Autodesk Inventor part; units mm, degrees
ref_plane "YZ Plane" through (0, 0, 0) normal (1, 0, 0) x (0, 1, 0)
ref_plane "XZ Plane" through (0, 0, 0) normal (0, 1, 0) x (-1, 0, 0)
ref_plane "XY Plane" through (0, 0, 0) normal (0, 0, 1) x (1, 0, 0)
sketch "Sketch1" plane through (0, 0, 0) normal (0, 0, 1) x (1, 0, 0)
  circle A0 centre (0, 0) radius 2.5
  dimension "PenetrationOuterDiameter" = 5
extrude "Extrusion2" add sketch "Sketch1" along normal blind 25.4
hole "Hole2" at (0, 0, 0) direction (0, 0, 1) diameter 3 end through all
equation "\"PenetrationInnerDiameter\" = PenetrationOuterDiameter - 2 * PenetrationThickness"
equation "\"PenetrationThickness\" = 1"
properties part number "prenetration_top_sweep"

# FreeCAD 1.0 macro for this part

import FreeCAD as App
import Part
import Sketcher
Q = App.Units.Quantity

doc = App.newDocument("Part")
body = doc.addObject("PartDesign::Body", "Body")

# Sketch on XY plane
sketch1 = doc.addObject("Sketcher::SketchObject", "Sketch")
body.addObject(sketch1)
sketch1.AttachmentSupport = (doc.XY_Plane, [""])
sketch1.MapMode = "FlatFace"
sketch1.addGeometry(Part.Circle(App.Vector(0, 0, 0), App.Vector(0, 0, 1), 2.5), False)
sketch1.addConstraint(Sketcher.Constraint("Coincident", 0, 3, -1, 1))
sketch1.addConstraint(Sketcher.Constraint("Diameter", 0, Q("5 mm")))
pad1 = doc.addObject("PartDesign::Pad", "Pad")
body.addObject(pad1)
pad1.Profile = sketch1
pad1.Length = 25.4

# Sketch on XY plane
sketch2 = doc.addObject("Sketcher::SketchObject", "Sketch001")
body.addObject(sketch2)
sketch2.AttachmentSupport = (doc.XY_Plane, [""])
sketch2.MapMode = "FlatFace"
sketch2.addGeometry(Part.Circle(App.Vector(0, 0, 0), App.Vector(0, 0, 1), 1.5), False)
sketch2.addConstraint(Sketcher.Constraint("Coincident", 0, 3, -1, 1))
sketch2.addConstraint(Sketcher.Constraint("Diameter", 0, Q("3 mm")))
doc.recompute()
hole = doc.addObject("PartDesign::Hole", "Hole")
body.addObject(hole)
hole.Profile = sketch2
hole.ThreadType = "None"
hole.Diameter = 3
hole.DepthType = "ThroughAll"
hole.Reversed = True

doc.recompute()
